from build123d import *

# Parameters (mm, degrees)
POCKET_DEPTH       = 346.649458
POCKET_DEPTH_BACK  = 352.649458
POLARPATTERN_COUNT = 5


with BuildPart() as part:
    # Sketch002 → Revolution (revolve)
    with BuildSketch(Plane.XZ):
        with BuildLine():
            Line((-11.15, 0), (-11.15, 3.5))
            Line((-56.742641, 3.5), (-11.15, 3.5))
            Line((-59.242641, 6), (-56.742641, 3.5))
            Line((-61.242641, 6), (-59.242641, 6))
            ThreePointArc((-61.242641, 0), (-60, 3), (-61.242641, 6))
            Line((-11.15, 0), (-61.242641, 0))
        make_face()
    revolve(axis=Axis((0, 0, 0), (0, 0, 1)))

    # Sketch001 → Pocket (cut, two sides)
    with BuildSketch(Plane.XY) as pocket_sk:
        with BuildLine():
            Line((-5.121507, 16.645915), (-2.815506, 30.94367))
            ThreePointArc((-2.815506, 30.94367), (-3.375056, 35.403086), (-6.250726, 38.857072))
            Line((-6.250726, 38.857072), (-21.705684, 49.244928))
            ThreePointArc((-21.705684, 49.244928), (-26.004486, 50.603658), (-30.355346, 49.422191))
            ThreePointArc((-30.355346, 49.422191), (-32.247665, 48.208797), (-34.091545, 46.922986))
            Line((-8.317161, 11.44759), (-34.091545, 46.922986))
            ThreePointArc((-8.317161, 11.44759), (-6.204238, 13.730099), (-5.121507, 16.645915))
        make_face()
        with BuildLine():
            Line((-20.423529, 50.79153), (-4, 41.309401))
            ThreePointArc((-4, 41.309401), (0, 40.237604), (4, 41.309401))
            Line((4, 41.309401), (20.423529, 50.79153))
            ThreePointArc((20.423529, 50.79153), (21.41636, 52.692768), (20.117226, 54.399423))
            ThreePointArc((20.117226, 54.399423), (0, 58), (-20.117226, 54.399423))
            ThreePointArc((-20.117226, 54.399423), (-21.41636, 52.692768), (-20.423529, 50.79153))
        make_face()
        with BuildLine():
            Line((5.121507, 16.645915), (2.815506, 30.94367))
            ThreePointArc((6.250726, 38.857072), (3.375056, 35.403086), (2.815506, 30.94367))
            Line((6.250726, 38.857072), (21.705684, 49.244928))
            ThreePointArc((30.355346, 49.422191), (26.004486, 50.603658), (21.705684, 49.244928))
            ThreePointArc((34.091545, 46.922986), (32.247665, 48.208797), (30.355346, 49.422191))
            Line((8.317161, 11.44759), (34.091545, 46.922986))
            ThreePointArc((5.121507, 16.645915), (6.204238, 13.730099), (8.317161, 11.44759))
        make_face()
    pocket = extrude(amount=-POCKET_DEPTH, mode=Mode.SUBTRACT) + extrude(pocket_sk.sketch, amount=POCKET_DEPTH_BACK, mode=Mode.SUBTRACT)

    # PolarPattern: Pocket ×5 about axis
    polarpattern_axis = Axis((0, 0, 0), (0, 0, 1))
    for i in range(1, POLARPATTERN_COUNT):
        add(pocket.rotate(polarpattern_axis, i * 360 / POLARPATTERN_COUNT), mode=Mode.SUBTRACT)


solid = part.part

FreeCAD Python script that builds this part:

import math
import FreeCAD as App
import Part
import Sketcher

V = App.Vector
Q = App.Units.Quantity

doc = App.newDocument("Part")
body = doc.addObject("PartDesign::Body", "Body")

sketch1 = body.newObject("Sketcher::SketchObject", "Sketch")
sketch1.AttachmentSupport = (doc.getObject("XZ_Plane"), [""])
sketch1.MapMode = "FlatFace"
sketch1.addGeometry(Part.LineSegment(V(-11.2, 0, 0), V(-11.2, 3.5, 0)), False)
sketch1.addGeometry(Part.LineSegment(V(-11.2, 3.5, 0), V(-56.7, 3.5, 0)), False)
sketch1.addGeometry(Part.LineSegment(V(-56.7, 3.5, 0), V(-59.2, 6, 0)), False)
sketch1.addGeometry(Part.LineSegment(V(-59.2, 6, 0), V(-61.2, 6, 0)), False)
sketch1.addGeometry(Part.ArcOfCircle(Part.Circle(V(-64.2, 3, 0), V(0, 0, 1), 4.2), math.radians(-45), math.radians(45)), False)
sketch1.addGeometry(Part.LineSegment(V(-61.2, 0, 0), V(-11.2, 0, 0)), False)
sketch1.addConstraint(Sketcher.Constraint("Coincident", 0, 2, 1, 1))
sketch1.addConstraint(Sketcher.Constraint("Coincident", 1, 2, 2, 1))
sketch1.addConstraint(Sketcher.Constraint("Coincident", 2, 2, 3, 1))
sketch1.addConstraint(Sketcher.Constraint("Coincident", 3, 2, 4, 2))
sketch1.addConstraint(Sketcher.Constraint("Coincident", 4, 1, 5, 1))
sketch1.addConstraint(Sketcher.Constraint("Coincident", 5, 2, 0, 1))
sketch1.addConstraint(Sketcher.Constraint("Vertical", 0))
sketch1.addConstraint(Sketcher.Constraint("Horizontal", 1))
sketch1.addConstraint(Sketcher.Constraint("Horizontal", 3))
sketch1.addConstraint(Sketcher.Constraint("Horizontal", 5))
sketch1.addConstraint(Sketcher.Constraint("PointOnObject", 4, 1, -1))
sketch1.addConstraint(Sketcher.Constraint("Vertical", 3, 2, 4, 1))
sketch1.addConstraint(Sketcher.Constraint("DistanceX", 3, 2, 3, 1, 2.0))
sketch1.addConstraint(Sketcher.Constraint("Angle", 2, Q("135 deg")))
sketch1.addConstraint(Sketcher.Constraint("DistanceY", 0, 1, 0, 2, 3.5))
sketch1.addConstraint(Sketcher.Constraint("DistanceY", -1, 1, 4, 3, 3.0))
sketch1.addConstraint(Sketcher.Constraint("DistanceX", 4, 3, 2, 2, 4.999999))
sketch1.addConstraint(Sketcher.Constraint("DistanceX", 0, 2, -1, 1, 11.15))
sketch1.addConstraint(Sketcher.Constraint("DistanceX", 1, 2, 1, 1, 45.592641))
revolution = body.newObject("PartDesign::Revolution", "Revolution")
revolution.Profile = sketch1
revolution.ReferenceAxis = (sketch1, ["V_Axis"])
revolution.Angle = 360

sketch2 = body.newObject("Sketcher::SketchObject", "Sketch001")
sketch2.AttachmentSupport = (doc.getObject("XY_Plane"), [""])
sketch2.MapMode = "FlatFace"
sketch2.addGeometry(Part.LineSegment(V(-5.121507, 16.645915, 0), V(-2.815506, 30.94367, 0)), False)
sketch2.addGeometry(Part.ArcOfCircle(Part.Circle(V(-10.713445, 32.217481, 0), V(0, 0, 1), 8.000002), math.radians(-9.161991), math.radians(56.093469)), False)
sketch2.addGeometry(Part.LineSegment(V(-6.250726, 38.857072, 0), V(-21.705684, 49.244928, 0)), False)
sketch2.addGeometry(Part.ArcOfCircle(Part.Circle(V(-26.168401, 42.605336, 0), V(0, 0, 1), 8.000001), math.radians(56.093484), math.radians(121.558447)), False)
sketch2.addGeometry(Part.ArcOfCircle(Part.Circle(V(0.000114, -0.000182, 0), V(0, 0, 1), 58.000215), math.radians(121.558446), math.radians(125.999985)), False)
sketch2.addGeometry(Part.LineSegment(V(-34.091545, 46.922986, 0), V(-8.317161, 11.44759, 0)), False)
sketch2.addGeometry(Part.ArcOfCircle(Part.Circle(V(-13.019444, 17.919725, 0), V(0, 0, 1), 8), math.radians(-53.999992), math.radians(-9.16199)), False)
sketch2.addGeometry(Part.LineSegment(V(-20.423529, 50.79153, 0), V(-4, 41.309401, 0)), False)
sketch2.addGeometry(Part.ArcOfCircle(Part.Circle(V(0, 48.237603, 0), V(0, 0, 1), 7.999999), math.radians(-120.000006), math.radians(-59.999994)), False)
sketch2.addGeometry(Part.LineSegment(V(4, 41.309401, 0), V(20.423529, 50.79153, 0)), False)
sketch2.addGeometry(Part.ArcOfCircle(Part.Circle(V(19.423529, 52.523581, 0), V(0, 0, 1), 2), math.radians(-59.999999), math.radians(69.705323)), False)
sketch2.addGeometry(Part.ArcOfCircle(Part.Circle(V(0, -0.000001, 0), V(0, 0, 1), 58.000001), math.radians(69.705311), math.radians(110.294689)), False)
sketch2.addGeometry(Part.ArcOfCircle(Part.Circle(V(-19.423529, 52.523581, 0), V(0, 0, 1), 2), math.radians(110.294677), math.radians(239.999999)), False)
sketch2.addGeometry(Part.LineSegment(V(2.815506, 30.94367, 0), V(5.121507, 16.645915, 0)), False)
sketch2.addGeometry(Part.ArcOfCircle(Part.Circle(V(13.019444, 17.919725, 0), V(0, 0, 1), 8), math.radians(-170.83801), math.radians(-126.000008)), False)
sketch2.addGeometry(Part.LineSegment(V(8.317161, 11.44759, 0), V(34.091545, 46.922986, 0)), False)
sketch2.addGeometry(Part.ArcOfCircle(Part.Circle(V(-0.000114, -0.000182, 0), V(0, 0, 1), 58.000215), math.radians(54.000015), math.radians(58.441554)), False)
sketch2.addGeometry(Part.ArcOfCircle(Part.Circle(V(26.168401, 42.605336, 0), V(0, 0, 1), 8.000001), math.radians(58.441553), math.radians(123.906516)), False)
sketch2.addGeometry(Part.LineSegment(V(21.705684, 49.244928, 0), V(6.250726, 38.857072, 0)), False)
sketch2.addGeometry(Part.ArcOfCircle(Part.Circle(V(10.713445, 32.217481, 0), V(0, 0, 1), 8.000002), math.radians(123.906531), math.radians(189.161991)), False)
sketch2.addConstraint(Sketcher.Constraint("Coincident", 0, 2, 1, 1))
sketch2.addConstraint(Sketcher.Constraint("Coincident", 1, 2, 2, 1))
sketch2.addConstraint(Sketcher.Constraint("Coincident", 2, 2, 3, 1))
sketch2.addConstraint(Sketcher.Constraint("Coincident", 3, 2, 4, 1))
sketch2.addConstraint(Sketcher.Constraint("Coincident", 4, 2, 5, 1))
sketch2.addConstraint(Sketcher.Constraint("Coincident", 5, 2, 6, 1))
sketch2.addConstraint(Sketcher.Constraint("Coincident", 6, 2, 0, 1))
sketch2.addConstraint(Sketcher.Constraint("Coincident", 7, 2, 8, 1))
sketch2.addConstraint(Sketcher.Constraint("Coincident", 8, 2, 9, 1))
sketch2.addConstraint(Sketcher.Constraint("Coincident", 9, 2, 10, 1))
sketch2.addConstraint(Sketcher.Constraint("Coincident", 10, 2, 11, 1))
sketch2.addConstraint(Sketcher.Constraint("Coincident", 11, 2, 12, 1))
sketch2.addConstraint(Sketcher.Constraint("Coincident", 12, 2, 7, 1))
sketch2.addConstraint(Sketcher.Constraint("Coincident", 13, 2, 14, 1))
sketch2.addConstraint(Sketcher.Constraint("Coincident", 14, 2, 15, 1))
sketch2.addConstraint(Sketcher.Constraint("Coincident", 15, 2, 16, 1))
sketch2.addConstraint(Sketcher.Constraint("Coincident", 16, 2, 17, 1))
sketch2.addConstraint(Sketcher.Constraint("Coincident", 17, 2, 18, 1))
sketch2.addConstraint(Sketcher.Constraint("Coincident", 18, 2, 19, 1))
sketch2.addConstraint(Sketcher.Constraint("Coincident", 19, 2, 13, 1))
sketch2.addConstraint(Sketcher.Constraint("Coincident", 11, 3, -1, 1))
sketch2.addConstraint(Sketcher.Constraint("PointOnObject", 8, 3, -2))
sketch2.addConstraint(Sketcher.Constraint("Radius", 1, 8.000002))
sketch2.addConstraint(Sketcher.Constraint("Radius", 3, 8.000001))
sketch2.addConstraint(Sketcher.Constraint("Radius", 6, 8.0))
sketch2.addConstraint(Sketcher.Constraint("Radius", 8, 7.999999))
sketch2.addConstraint(Sketcher.Constraint("Radius", 10, 2.0))
sketch2.addConstraint(Sketcher.Constraint("Radius", 11, 58.000001))
sketch2.addConstraint(Sketcher.Constraint("Radius", 12, 2.0))
sketch2.addConstraint(Sketcher.Constraint("Radius", 14, 8.0))
sketch2.addConstraint(Sketcher.Constraint("Radius", 17, 8.000001))
sketch2.addConstraint(Sketcher.Constraint("Radius", 19, 8.000002))
sketch2.addConstraint(Sketcher.Constraint("DistanceX", 7, 2, -1, 1, 4.0))
sketch2.addConstraint(Sketcher.Constraint("DistanceX", -1, 1, 8, 2, 4.0))
sketch2.addConstraint(Sketcher.Constraint("DistanceX", 10, 3, 9, 2, 1.0))
sketch2.addConstraint(Sketcher.Constraint("DistanceX", 12, 2, 12, 3, 1.0))
sketch2.addConstraint(Sketcher.Constraint("Distance", 5, 43.850001))
sketch2.addConstraint(Sketcher.Constraint("Distance", 15, 43.850001))
sketch2.addConstraint(Sketcher.Constraint("Radius", 4, 58.000215))
sketch2.addConstraint(Sketcher.Constraint("Radius", 16, 58.000215))
sketch2.addConstraint(Sketcher.Constraint("DistanceX", 6, 3, 1, 3, 2.305999))
sketch2.addConstraint(Sketcher.Constraint("DistanceX", 19, 3, 14, 3, 2.305999))
sketch2.addConstraint(Sketcher.Constraint("DistanceX", 6, 2, 0, 2, 2.306001))
sketch2.addConstraint(Sketcher.Constraint("DistanceX", 3, 3, -1, 1, 26.168401))
sketch2.addConstraint(Sketcher.Constraint("DistanceX", -1, 1, 17, 3, 26.168401))
sketch2.addConstraint(Sketcher.Constraint("DistanceY", -1, 1, 7, 2, 41.309401))
sketch2.addConstraint(Sketcher.Constraint("DistanceY", 1, 3, 10, 3, 20.3061))
sketch2.addConstraint(Sketcher.Constraint("DistanceY", 1, 3, 12, 3, 20.3061))
sketch2.addConstraint(Sketcher.Constraint("DistanceY", 19, 3, 10, 3, 20.3061))
sketch2.addConstraint(Sketcher.Constraint("DistanceX", 3, 2, 1, 3, 19.641901))
sketch2.addConstraint(Sketcher.Constraint("DistanceX", 4, 2, 3, 2, 3.736199))
sketch2.addConstraint(Sketcher.Constraint("DistanceY", 2, 2, 12, 2, 1.546602))
sketch2.addConstraint(Sketcher.Constraint("DistanceX", 19, 3, 15, 2, 23.3781))
sketch2.addConstraint(Sketcher.Constraint("DistanceX", 16, 2, 15, 2, 3.736199))
sketch2.addConstraint(Sketcher.Constraint("DistanceY", 17, 2, 9, 2, 1.546602))
sketch2.addConstraint(Sketcher.Constraint("DistanceY", 19, 2, 18, 2, 7.913402))
sketch2.addConstraint(Sketcher.Constraint("Distance", 0, 14.482522))
sketch2.addConstraint(Sketcher.Constraint("Distance", 2, 18.621581))
sketch2.addConstraint(Sketcher.Constraint("Distance", 13, 14.482522))
sketch2.addConstraint(Sketcher.Constraint("Distance", 18, 18.621581))
sketch2.addConstraint(Sketcher.Constraint("DistanceY", -1, 1, 1, 3, 32.217481))
sketch2.addConstraint(Sketcher.Constraint("DistanceY", -1, 1, 0, 2, 30.94367))
sketch2.addConstraint(Sketcher.Constraint("DistanceY", -1, 1, 3, 2, 49.422191))
sketch2.addConstraint(Sketcher.Constraint("DistanceX", 5, 2, -1, 1, 8.317161))
sketch2.addConstraint(Sketcher.Constraint("DistanceY", -1, 1, 5, 2, 11.44759))
sketch2.addConstraint(Sketcher.Constraint("DistanceX", -1, 1, 14, 2, 8.317161))
sketch2.addConstraint(Sketcher.Constraint("DistanceY", -1, 1, 14, 2, 11.44759))
sketch2.addConstraint(Sketcher.Constraint("DistanceY", -1, 1, 16, 2, 49.422191))
sketch2.addConstraint(Sketcher.Constraint("DistanceY", -1, 1, 19, 2, 30.94367))
sketch2.addConstraint(Sketcher.Constraint("DistanceY", 8, 3, 10, 2, 6.16182))
sketch2.addConstraint(Sketcher.Constraint("DistanceX", 2, 2, 11, 2, 1.588458))
pocket1 = body.newObject("PartDesign::Pocket", "Pocket")
pocket1.Profile = sketch2
pocket1.Type = "ThroughAll"
pocket1.Midplane = True
doc.recompute()

polarpattern = body.newObject("PartDesign::PolarPattern", "PolarPattern")
polarpattern.Originals = [pocket1]
polarpattern.Axis = (doc.getObject("Z_Axis"), [""])
polarpattern.Angle = 360
polarpattern.Occurrences = 5
body.Tip = polarpattern

doc.recompute()
